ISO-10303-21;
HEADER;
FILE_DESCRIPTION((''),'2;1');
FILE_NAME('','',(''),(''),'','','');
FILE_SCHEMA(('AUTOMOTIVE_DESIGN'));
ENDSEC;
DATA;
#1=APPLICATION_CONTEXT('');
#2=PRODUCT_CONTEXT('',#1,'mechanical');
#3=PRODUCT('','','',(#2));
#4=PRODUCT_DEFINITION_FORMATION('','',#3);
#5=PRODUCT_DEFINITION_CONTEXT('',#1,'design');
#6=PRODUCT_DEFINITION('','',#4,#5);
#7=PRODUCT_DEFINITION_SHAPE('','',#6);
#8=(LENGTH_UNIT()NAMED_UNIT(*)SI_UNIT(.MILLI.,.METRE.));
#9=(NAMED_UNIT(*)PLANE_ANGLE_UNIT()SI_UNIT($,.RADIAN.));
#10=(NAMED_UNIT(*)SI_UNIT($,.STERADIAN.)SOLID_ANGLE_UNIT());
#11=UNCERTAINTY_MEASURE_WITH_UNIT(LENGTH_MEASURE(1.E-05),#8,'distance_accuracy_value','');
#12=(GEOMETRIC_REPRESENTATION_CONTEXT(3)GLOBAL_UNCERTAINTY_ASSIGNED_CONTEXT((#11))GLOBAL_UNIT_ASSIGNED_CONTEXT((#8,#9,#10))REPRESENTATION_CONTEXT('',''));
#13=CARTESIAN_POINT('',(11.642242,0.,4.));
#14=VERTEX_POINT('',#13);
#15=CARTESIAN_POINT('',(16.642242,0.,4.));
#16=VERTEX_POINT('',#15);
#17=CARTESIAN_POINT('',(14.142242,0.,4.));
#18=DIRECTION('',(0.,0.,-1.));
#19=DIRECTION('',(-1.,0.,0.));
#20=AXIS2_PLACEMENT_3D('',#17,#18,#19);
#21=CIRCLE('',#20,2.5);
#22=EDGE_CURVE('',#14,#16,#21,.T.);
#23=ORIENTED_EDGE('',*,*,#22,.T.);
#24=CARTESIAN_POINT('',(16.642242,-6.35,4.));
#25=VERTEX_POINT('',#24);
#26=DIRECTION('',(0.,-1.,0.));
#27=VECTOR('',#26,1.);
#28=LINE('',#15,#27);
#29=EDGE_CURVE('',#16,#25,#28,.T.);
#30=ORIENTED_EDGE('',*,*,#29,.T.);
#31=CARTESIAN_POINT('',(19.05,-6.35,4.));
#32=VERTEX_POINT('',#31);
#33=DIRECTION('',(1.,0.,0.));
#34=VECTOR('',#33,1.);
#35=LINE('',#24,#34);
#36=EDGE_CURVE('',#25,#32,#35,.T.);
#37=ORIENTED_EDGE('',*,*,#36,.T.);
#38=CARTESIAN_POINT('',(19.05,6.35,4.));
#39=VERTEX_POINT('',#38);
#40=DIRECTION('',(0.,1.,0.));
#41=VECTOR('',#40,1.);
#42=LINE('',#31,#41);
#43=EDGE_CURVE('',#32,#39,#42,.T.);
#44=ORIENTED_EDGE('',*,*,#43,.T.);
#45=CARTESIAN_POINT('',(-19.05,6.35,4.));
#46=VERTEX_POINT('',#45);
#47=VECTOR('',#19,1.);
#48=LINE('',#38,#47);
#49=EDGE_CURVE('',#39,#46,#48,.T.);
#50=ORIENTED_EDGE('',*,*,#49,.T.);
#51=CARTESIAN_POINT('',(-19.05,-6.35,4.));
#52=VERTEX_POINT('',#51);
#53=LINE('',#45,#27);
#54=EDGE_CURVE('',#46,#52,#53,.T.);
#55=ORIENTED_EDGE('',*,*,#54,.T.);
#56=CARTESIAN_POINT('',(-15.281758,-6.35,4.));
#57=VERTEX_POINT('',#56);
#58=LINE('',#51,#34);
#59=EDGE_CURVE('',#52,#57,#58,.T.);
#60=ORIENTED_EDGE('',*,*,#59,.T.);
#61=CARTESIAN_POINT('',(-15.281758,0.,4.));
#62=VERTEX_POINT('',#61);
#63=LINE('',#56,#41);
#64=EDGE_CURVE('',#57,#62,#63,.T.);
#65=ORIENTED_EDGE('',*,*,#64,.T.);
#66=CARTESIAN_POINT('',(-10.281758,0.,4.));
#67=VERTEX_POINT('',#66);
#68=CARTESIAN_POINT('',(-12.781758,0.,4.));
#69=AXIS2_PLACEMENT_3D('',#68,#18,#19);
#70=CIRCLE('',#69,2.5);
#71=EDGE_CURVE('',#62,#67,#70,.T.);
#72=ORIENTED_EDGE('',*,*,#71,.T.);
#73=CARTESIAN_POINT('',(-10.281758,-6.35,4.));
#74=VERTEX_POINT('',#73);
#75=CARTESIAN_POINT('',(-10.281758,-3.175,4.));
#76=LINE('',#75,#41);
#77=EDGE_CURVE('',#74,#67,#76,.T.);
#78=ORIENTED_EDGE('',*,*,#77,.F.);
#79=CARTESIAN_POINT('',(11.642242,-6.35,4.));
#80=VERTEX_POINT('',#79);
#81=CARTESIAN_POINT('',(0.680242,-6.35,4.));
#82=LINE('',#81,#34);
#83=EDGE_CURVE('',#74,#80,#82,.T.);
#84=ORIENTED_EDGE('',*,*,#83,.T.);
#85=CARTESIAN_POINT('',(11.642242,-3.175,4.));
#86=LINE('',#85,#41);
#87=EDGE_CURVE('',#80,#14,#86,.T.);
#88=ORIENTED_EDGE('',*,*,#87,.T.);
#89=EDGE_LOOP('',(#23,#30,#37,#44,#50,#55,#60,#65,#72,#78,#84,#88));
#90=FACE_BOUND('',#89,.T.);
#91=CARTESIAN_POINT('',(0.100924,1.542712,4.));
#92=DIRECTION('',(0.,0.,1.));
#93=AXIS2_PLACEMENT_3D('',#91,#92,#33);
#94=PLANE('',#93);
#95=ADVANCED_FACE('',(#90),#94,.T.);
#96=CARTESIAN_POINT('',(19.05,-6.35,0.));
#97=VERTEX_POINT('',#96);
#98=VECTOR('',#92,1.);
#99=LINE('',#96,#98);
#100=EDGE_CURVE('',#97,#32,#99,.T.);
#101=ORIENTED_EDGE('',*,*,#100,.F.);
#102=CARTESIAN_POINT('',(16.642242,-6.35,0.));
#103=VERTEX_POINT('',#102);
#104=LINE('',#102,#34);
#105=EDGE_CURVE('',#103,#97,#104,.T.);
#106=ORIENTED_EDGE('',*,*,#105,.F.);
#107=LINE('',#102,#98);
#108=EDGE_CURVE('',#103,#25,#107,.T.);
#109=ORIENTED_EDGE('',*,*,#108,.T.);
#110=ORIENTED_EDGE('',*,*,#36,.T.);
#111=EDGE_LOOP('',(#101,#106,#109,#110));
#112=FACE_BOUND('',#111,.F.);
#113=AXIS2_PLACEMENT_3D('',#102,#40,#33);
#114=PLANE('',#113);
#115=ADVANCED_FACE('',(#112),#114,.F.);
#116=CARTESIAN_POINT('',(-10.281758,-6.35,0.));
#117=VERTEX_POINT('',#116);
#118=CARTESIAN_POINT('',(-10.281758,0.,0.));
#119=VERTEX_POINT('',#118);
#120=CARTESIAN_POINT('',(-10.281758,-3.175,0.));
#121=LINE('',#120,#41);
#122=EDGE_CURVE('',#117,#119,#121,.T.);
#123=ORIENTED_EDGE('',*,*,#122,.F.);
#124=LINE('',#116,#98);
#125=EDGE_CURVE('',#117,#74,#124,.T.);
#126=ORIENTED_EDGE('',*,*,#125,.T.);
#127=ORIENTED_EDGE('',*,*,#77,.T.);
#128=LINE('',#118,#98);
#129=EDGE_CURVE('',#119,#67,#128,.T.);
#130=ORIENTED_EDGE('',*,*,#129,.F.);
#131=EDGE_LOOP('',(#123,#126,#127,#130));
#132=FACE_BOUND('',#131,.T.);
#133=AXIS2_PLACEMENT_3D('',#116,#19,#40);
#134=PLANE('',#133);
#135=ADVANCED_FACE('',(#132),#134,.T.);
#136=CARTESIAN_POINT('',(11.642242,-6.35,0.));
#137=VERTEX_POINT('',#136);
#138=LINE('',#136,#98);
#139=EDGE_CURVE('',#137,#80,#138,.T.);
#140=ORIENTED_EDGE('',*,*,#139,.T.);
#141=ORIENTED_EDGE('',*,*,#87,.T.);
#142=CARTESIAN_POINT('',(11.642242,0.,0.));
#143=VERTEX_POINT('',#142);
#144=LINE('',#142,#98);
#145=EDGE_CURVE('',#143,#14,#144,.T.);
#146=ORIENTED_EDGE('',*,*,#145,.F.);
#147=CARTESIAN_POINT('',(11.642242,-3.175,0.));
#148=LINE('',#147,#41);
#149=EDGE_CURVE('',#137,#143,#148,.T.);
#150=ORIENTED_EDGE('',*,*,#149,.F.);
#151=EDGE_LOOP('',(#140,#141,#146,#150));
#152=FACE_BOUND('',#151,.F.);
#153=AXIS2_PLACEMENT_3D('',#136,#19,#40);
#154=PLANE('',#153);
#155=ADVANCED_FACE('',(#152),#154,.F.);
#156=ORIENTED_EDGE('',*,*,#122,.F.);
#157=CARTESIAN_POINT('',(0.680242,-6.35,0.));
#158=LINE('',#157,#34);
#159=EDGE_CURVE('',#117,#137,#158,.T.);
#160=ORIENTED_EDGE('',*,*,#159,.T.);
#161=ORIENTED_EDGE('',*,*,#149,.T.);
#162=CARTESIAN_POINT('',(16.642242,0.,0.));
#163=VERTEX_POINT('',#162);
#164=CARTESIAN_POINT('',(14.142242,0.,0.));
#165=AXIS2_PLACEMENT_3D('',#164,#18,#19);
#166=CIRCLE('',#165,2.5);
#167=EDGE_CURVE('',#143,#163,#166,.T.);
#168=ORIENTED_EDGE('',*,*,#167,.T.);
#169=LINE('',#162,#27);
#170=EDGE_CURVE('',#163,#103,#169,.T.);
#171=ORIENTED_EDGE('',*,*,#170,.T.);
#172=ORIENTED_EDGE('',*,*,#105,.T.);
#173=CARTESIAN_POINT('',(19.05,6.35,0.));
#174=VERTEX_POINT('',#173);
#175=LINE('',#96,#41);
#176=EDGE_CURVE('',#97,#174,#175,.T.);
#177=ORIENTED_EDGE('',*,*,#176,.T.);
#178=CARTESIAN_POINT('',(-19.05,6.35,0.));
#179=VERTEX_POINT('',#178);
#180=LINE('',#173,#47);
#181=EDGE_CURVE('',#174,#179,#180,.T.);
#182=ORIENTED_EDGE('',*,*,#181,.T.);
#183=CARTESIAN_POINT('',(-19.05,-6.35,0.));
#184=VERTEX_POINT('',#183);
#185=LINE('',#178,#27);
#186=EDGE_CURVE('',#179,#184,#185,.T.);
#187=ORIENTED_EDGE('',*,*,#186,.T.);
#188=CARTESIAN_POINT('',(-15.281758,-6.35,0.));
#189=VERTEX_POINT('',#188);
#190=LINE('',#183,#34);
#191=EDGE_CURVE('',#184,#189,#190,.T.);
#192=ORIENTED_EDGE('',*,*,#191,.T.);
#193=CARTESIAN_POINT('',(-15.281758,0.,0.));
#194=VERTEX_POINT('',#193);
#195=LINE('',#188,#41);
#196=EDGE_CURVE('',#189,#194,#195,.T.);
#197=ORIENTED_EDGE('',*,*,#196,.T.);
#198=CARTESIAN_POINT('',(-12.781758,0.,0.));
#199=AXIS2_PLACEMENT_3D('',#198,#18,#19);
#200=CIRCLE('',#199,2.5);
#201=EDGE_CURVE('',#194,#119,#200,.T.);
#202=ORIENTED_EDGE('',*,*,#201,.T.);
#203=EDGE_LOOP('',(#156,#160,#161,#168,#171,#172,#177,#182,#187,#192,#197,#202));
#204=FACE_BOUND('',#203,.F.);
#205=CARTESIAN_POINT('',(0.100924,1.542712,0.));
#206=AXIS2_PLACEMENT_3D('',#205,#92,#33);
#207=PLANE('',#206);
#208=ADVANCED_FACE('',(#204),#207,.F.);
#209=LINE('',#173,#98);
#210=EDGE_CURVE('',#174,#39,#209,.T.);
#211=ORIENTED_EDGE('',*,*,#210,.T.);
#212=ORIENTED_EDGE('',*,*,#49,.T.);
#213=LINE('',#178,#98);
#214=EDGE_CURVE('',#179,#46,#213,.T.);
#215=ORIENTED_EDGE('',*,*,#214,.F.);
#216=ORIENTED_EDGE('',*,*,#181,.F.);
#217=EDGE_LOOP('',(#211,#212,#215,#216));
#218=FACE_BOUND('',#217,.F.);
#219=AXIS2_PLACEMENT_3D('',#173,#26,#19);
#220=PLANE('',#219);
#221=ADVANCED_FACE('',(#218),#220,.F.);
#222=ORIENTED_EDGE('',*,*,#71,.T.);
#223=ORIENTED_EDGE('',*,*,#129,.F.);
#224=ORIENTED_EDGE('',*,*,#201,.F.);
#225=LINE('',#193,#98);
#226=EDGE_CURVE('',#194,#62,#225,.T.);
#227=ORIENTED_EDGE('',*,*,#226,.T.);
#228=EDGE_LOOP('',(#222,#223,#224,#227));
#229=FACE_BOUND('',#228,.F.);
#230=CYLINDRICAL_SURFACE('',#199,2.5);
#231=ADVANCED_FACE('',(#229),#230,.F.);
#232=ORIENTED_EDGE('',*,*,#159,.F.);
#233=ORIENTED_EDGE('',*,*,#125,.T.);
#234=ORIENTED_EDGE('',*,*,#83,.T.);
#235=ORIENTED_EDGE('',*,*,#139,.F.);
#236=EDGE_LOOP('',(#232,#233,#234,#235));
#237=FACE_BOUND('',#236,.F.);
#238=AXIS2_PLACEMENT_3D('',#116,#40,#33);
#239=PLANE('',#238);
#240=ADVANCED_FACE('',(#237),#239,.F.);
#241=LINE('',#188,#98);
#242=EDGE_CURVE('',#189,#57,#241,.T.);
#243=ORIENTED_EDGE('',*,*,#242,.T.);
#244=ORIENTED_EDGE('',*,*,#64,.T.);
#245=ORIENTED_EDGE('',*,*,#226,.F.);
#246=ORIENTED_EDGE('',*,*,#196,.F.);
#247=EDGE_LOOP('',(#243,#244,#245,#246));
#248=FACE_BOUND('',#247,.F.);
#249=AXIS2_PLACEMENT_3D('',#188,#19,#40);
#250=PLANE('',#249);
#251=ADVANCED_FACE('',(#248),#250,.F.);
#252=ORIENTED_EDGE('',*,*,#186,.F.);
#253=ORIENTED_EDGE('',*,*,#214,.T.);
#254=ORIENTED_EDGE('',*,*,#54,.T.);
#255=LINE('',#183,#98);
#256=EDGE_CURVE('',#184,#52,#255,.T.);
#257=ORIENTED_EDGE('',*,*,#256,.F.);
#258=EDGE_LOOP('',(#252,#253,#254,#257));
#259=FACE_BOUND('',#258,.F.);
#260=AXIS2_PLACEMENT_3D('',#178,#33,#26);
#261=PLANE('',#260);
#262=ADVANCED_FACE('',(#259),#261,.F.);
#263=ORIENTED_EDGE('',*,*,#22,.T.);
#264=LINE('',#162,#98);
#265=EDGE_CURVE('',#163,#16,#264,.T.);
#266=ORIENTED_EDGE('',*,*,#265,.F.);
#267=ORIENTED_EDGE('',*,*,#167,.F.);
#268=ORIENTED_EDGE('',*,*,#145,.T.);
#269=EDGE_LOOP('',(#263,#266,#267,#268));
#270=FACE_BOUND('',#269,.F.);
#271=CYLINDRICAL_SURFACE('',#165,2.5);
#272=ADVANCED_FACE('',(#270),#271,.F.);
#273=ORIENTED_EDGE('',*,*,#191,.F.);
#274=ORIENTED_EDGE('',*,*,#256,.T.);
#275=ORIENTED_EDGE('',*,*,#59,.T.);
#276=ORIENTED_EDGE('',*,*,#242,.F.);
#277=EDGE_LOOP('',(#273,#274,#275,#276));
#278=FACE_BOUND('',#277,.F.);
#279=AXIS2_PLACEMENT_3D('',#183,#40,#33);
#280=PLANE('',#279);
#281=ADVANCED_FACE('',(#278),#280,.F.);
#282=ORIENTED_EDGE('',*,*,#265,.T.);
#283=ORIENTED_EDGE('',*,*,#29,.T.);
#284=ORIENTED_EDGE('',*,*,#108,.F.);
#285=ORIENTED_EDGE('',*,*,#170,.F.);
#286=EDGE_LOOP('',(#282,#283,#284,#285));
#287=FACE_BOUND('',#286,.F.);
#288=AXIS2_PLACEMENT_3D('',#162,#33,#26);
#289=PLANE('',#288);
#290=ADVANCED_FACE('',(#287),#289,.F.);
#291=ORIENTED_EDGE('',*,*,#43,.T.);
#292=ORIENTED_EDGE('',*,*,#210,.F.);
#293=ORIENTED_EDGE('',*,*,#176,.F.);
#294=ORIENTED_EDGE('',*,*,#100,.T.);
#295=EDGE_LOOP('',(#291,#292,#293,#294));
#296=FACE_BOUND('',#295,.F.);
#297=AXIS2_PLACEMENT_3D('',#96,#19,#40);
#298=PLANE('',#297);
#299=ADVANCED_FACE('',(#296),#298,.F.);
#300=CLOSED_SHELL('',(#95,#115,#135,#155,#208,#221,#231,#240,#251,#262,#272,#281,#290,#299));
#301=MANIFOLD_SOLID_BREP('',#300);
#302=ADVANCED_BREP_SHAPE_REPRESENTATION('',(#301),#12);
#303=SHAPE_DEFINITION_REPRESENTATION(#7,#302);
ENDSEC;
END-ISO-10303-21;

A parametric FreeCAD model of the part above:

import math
import FreeCAD as App
import Part
import Sketcher

V = App.Vector
Q = App.Units.Quantity

doc = App.newDocument("Part")
body = doc.addObject("PartDesign::Body", "Body")

sketch1 = body.newObject("Sketcher::SketchObject", "Sketch")
sketch1.AttachmentSupport = (doc.getObject("XY_Plane"), [""])
sketch1.MapMode = "FlatFace"
sketch1.addGeometry([
    Part.ArcOfCircle(Part.Circle(V(-12.8, 0, 0), V(0, 0, 1), 2.5), math.radians(0), math.radians(180)),
    Part.LineSegment(V(-10.3, 0, 0), V(-10.3, -6.3, 0)),
    Part.LineSegment(V(-10.3, -6.3, 0), V(11.6, -6.3, 0)),
    Part.LineSegment(V(11.6, -6.3, 0), V(11.6, 0, 0)),
    Part.ArcOfCircle(Part.Circle(V(14.1, 0, 0), V(0, 0, 1), 2.5), math.radians(0), math.radians(180)),
    Part.LineSegment(V(16.6, 0, 0), V(16.6, -6.3, 0)),
    Part.LineSegment(V(16.6, -6.3, 0), V(19.1, -6.3, 0)),
    Part.LineSegment(V(19.1, -6.3, 0), V(19.1, 6.3, 0)),
    Part.LineSegment(V(19.1, 6.3, 0), V(-19.1, 6.3, 0)),
    Part.LineSegment(V(-19.1, 6.3, 0), V(-19.1, -6.3, 0)),
    Part.LineSegment(V(-19.1, -6.3, 0), V(-15.3, -6.3, 0)),
    Part.LineSegment(V(-15.3, -6.3, 0), V(-15.3, 0, 0)),
], False)
sketch1.addConstraint([
    Sketcher.Constraint("Tangent", 0, 1, 1, 1),
    Sketcher.Constraint("Coincident", 1, 2, 2, 1),
    Sketcher.Constraint("Coincident", 2, 2, 3, 1),
    Sketcher.Constraint("Tangent", 3, 2, 4, 2),
    Sketcher.Constraint("Tangent", 4, 1, 5, 1),
    Sketcher.Constraint("Coincident", 5, 2, 6, 1),
    Sketcher.Constraint("Coincident", 6, 2, 7, 1),
    Sketcher.Constraint("Coincident", 7, 2, 8, 1),
    Sketcher.Constraint("Coincident", 8, 2, 9, 1),
    Sketcher.Constraint("Coincident", 9, 2, 10, 1),
    Sketcher.Constraint("Coincident", 10, 2, 11, 1),
    Sketcher.Constraint("Tangent", 11, 2, 0, 2),
    Sketcher.Constraint("Vertical", 1),
    Sketcher.Constraint("Horizontal", 2),
    Sketcher.Constraint("Vertical", 3),
    Sketcher.Constraint("Vertical", 5),
    Sketcher.Constraint("Horizontal", 6),
    Sketcher.Constraint("Vertical", 7),
    Sketcher.Constraint("Horizontal", 8),
    Sketcher.Constraint("Vertical", 9),
    Sketcher.Constraint("Horizontal", 10),
    Sketcher.Constraint("Vertical", 11),
    Sketcher.Constraint("Equal", 0, 4),
    Sketcher.Constraint("Symmetric", 6, 2, 8, 2, -1, 1),
    Sketcher.Constraint("PointOnObject", 0, 3, -1),
    Sketcher.Constraint("PointOnObject", 4, 3, -1),
    Sketcher.Constraint("Horizontal", 2, 2, 5, 2),
    Sketcher.Constraint("Horizontal", 6, 2, 9, 2),
    Sketcher.Constraint("DistanceX", 8, 2, 8, 1, Q("1.5 in")),
    Sketcher.Constraint("DistanceY", 7, 1, 7, 2, Q("0.5 in")),
    Sketcher.Constraint("Radius", 0, Q("2.5 mm")),
    Sketcher.Constraint("DistanceX", 0, 3, 4, 3, Q("1.06 in")),
    Sketcher.Constraint("DistanceX", 6, 1, 6, 2, Q("2.407758 mm")),
])
pad1 = body.newObject("PartDesign::Pad", "Pad")
pad1.Profile = sketch1
pad1.Length = 4

doc.recompute()
